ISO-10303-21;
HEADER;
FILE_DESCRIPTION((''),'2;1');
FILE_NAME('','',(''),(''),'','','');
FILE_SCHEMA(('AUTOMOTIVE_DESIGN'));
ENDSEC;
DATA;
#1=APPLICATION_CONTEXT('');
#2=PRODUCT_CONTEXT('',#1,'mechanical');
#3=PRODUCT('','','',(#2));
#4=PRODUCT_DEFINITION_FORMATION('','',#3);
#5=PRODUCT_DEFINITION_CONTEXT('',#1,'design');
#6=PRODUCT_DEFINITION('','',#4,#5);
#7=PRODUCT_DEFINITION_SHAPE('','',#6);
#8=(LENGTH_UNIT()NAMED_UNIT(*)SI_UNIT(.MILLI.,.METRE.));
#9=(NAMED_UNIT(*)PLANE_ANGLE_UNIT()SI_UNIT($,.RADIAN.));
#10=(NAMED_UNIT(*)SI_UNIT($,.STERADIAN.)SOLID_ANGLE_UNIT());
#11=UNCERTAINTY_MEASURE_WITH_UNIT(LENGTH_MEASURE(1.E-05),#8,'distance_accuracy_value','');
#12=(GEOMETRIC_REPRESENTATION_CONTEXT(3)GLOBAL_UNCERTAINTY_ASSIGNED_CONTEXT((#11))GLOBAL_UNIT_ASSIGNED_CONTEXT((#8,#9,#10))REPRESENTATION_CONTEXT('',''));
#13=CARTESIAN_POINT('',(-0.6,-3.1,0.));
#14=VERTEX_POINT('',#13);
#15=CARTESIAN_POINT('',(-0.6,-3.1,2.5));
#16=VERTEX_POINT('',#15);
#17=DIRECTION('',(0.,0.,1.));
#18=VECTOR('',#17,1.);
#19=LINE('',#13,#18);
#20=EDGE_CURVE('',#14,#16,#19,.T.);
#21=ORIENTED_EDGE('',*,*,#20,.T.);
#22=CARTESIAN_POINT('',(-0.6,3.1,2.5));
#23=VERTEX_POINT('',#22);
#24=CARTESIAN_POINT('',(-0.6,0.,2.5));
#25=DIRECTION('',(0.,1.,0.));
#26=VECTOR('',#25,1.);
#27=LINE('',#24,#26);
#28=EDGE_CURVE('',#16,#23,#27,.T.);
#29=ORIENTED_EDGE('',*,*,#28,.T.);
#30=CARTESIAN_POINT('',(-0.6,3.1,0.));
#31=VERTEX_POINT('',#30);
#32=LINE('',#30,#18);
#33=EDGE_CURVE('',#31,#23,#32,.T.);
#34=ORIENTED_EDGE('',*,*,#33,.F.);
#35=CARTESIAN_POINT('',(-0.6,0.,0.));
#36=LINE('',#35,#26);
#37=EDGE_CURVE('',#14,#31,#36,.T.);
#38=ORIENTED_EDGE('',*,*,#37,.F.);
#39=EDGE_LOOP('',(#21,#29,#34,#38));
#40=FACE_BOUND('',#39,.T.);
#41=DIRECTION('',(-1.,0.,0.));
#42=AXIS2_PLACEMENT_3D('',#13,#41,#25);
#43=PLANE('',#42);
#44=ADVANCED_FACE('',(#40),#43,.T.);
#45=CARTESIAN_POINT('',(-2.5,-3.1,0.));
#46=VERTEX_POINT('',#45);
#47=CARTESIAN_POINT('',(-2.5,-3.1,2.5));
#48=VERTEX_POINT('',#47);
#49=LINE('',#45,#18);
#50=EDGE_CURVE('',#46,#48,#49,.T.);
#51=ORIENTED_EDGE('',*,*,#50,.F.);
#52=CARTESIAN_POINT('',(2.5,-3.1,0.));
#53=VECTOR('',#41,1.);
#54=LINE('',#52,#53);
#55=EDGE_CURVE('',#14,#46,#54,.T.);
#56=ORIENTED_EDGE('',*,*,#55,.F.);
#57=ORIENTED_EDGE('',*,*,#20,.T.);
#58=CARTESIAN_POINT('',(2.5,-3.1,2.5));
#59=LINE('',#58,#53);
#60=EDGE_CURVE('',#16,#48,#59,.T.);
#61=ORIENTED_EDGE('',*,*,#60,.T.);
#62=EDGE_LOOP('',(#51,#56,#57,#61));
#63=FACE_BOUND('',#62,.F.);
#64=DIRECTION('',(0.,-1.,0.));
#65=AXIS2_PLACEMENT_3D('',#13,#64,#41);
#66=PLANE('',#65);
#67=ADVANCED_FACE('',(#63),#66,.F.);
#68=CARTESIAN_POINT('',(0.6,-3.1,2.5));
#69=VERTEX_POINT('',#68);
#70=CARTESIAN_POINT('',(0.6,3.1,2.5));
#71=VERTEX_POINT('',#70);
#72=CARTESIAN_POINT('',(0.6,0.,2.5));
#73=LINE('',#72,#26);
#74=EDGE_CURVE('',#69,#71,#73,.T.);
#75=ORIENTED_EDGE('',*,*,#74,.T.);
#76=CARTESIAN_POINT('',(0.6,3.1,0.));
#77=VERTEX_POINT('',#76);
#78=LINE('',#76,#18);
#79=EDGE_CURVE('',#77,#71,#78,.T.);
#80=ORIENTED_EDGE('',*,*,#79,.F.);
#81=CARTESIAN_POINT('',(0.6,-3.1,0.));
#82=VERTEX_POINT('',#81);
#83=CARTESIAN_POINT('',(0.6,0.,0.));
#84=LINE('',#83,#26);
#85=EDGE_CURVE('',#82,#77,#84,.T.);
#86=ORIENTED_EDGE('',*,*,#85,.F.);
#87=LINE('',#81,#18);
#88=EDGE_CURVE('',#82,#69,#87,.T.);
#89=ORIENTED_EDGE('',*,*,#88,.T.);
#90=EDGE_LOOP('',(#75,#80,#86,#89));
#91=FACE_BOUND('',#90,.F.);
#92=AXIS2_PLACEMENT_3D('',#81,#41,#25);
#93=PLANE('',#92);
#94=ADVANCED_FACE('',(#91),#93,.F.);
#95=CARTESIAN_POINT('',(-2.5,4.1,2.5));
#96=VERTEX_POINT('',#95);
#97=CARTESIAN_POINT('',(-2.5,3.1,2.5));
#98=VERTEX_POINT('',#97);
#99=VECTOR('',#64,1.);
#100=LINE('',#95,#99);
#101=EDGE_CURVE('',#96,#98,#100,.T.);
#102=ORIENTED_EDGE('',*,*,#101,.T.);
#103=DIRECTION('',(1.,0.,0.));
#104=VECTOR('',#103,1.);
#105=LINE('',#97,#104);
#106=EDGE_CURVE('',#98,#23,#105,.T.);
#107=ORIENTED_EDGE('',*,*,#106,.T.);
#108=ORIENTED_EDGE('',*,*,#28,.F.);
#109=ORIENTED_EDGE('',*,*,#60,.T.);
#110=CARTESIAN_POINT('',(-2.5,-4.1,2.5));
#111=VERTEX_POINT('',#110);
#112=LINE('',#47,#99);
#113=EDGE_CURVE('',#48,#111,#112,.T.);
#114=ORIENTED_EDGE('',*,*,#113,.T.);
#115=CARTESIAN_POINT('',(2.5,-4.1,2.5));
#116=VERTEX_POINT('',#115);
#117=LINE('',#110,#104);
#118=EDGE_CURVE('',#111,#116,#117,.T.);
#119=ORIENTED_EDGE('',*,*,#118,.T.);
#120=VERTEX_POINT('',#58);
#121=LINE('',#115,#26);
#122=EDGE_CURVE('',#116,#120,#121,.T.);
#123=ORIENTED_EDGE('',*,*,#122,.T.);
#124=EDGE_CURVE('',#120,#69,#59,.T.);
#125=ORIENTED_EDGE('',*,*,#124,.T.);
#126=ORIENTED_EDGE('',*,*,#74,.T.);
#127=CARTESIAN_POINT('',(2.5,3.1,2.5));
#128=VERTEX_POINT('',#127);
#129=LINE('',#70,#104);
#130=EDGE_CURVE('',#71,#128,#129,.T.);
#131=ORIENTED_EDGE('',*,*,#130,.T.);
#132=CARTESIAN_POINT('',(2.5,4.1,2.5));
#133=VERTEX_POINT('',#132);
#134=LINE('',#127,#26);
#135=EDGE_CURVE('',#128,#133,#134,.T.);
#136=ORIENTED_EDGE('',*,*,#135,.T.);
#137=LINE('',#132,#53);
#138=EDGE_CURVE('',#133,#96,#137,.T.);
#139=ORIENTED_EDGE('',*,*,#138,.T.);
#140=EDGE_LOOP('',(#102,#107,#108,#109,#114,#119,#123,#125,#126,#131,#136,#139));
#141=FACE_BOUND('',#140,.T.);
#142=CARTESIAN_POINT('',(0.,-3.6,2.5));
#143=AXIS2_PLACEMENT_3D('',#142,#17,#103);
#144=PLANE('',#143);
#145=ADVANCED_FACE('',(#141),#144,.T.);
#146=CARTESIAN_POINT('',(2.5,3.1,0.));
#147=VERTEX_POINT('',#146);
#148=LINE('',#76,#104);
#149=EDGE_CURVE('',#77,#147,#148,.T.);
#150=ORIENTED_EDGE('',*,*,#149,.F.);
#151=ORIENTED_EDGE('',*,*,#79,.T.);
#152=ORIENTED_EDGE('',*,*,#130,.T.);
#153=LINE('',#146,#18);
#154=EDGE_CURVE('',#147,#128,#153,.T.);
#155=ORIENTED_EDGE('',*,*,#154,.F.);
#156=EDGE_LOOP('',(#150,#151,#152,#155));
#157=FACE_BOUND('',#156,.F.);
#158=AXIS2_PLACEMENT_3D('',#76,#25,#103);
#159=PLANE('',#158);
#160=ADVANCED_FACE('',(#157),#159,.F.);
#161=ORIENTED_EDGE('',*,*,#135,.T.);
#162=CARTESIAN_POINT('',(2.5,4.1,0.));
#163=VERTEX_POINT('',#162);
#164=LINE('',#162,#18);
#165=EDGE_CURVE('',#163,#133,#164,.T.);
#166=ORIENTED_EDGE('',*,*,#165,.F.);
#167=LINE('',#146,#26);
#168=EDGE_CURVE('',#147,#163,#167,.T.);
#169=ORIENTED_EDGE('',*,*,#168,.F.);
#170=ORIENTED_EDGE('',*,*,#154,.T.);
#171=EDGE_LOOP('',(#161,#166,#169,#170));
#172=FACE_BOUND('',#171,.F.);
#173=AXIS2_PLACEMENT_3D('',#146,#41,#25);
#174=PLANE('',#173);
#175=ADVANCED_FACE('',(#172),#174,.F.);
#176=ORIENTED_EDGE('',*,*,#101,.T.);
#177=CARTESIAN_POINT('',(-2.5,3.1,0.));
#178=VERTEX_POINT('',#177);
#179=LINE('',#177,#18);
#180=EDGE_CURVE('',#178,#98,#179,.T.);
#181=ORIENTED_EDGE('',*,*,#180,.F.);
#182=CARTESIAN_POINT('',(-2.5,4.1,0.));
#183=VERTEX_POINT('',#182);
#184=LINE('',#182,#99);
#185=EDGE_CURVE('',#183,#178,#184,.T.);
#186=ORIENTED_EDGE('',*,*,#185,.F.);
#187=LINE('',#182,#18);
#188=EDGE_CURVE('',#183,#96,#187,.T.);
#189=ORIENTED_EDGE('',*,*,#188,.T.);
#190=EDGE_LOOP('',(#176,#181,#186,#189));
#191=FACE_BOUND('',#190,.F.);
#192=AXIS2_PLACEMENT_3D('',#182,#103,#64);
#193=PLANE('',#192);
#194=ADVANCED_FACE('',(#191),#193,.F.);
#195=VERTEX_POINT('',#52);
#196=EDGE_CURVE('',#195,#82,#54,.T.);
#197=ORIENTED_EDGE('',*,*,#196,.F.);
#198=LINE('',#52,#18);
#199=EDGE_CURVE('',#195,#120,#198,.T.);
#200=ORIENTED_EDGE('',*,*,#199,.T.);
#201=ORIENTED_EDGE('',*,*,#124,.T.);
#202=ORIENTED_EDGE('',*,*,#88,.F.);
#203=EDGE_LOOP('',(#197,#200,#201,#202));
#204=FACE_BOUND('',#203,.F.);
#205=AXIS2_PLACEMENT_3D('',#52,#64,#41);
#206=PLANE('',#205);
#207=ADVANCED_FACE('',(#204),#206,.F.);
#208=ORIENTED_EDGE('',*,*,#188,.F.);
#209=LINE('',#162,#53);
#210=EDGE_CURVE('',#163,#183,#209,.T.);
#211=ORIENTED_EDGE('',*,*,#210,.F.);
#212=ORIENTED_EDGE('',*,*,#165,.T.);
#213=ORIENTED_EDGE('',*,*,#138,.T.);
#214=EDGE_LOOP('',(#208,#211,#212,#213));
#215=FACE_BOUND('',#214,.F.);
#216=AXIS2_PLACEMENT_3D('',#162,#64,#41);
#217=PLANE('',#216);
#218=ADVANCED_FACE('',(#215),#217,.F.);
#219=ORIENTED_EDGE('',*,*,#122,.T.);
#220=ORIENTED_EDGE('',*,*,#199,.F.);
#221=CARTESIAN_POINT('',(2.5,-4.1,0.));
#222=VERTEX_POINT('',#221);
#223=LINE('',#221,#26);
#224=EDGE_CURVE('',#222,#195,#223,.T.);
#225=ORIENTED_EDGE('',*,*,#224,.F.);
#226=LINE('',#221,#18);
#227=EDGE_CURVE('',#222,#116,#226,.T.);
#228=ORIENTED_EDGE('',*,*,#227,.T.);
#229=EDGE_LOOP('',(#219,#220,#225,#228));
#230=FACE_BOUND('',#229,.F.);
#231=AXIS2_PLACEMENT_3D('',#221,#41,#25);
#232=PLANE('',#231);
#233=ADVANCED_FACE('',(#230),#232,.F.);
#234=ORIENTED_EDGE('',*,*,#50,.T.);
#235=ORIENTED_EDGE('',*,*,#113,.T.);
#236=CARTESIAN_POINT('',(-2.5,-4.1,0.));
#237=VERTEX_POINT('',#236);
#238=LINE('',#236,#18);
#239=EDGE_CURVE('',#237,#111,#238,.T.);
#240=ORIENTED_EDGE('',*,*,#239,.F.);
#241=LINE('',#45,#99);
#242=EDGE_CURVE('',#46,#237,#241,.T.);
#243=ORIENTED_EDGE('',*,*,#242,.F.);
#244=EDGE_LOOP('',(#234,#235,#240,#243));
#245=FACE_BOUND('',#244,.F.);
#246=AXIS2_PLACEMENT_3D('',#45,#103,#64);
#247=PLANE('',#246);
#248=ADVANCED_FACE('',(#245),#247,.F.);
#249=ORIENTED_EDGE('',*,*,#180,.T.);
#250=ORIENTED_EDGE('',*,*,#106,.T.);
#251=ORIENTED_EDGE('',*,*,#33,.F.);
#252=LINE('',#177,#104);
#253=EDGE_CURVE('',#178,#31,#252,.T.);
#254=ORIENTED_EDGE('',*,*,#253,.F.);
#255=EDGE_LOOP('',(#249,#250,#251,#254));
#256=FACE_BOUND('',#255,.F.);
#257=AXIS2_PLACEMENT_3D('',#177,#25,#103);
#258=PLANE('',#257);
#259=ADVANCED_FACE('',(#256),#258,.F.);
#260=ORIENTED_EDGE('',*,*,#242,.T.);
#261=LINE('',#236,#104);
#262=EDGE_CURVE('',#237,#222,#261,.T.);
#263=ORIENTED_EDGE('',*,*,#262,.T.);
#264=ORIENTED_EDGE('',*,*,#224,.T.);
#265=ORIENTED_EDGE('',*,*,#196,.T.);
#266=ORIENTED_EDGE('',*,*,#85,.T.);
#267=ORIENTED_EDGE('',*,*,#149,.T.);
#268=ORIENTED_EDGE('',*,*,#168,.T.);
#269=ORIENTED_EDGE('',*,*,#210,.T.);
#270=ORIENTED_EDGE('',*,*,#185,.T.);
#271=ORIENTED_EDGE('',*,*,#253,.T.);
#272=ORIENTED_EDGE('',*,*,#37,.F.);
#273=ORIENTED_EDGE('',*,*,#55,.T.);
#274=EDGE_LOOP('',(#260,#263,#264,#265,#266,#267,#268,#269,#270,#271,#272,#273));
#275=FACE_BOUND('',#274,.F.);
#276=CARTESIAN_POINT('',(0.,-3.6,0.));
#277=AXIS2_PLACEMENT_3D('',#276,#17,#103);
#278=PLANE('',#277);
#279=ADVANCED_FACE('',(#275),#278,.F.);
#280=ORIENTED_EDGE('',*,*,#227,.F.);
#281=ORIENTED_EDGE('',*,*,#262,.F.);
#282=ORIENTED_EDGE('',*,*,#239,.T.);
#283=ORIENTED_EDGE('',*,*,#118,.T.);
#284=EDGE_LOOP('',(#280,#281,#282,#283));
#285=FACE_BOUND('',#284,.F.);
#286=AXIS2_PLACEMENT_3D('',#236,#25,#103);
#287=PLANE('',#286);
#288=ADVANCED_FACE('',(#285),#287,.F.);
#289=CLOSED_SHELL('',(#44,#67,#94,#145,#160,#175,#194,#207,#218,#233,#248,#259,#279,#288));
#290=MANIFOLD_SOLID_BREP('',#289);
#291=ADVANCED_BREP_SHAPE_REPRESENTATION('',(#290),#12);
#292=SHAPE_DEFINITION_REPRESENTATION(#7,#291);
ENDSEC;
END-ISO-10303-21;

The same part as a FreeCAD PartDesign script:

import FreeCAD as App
import Part
import Sketcher
from FreeCAD import Vector


def add_polygon(sketch, points):
    """Adds a closed chain of lines whose ends are joined by coincident constraints."""
    first, n = sketch.GeometryCount, len(points)
    for a, b in zip(points, points[1:] + points[:1]):
        sketch.addGeometry(Part.LineSegment(App.Vector(*a, 0), App.Vector(*b, 0)), False)
    for i in range(n):
        sketch.addConstraint(Sketcher.Constraint("Coincident", first + i, 2, first + (i + 1) % n, 1))

doc = App.newDocument("Part")
body = doc.addObject("PartDesign::Body", "Body")

# Sketch on XY plane
sketch1 = body.newObject("Sketcher::SketchObject", "Sketch")
sketch1.AttachmentSupport = (doc.getObject("XY_Plane"), [""])
sketch1.MapMode = "FlatFace"
add_polygon(sketch1, [(2.5, -3.1), (0.6, -3.1), (0.6, 3.1), (2.5, 3.1), (2.5, 4.1), (-2.5, 4.1), (-2.5, 3.1), (-0.6, 3.1), (-0.6, -3.1), (-2.5, -3.1), (-2.5, -4.1), (2.5, -4.1)])  # lines 0-11
sketch1.addConstraint(Sketcher.Constraint("Horizontal", 0))
sketch1.addConstraint(Sketcher.Constraint("Vertical", 1))
sketch1.addConstraint(Sketcher.Constraint("Horizontal", 2))
sketch1.addConstraint(Sketcher.Constraint("Vertical", 3))
sketch1.addConstraint(Sketcher.Constraint("Horizontal", 4))
sketch1.addConstraint(Sketcher.Constraint("Vertical", 5))
sketch1.addConstraint(Sketcher.Constraint("Horizontal", 6))
sketch1.addConstraint(Sketcher.Constraint("Vertical", 7))
sketch1.addConstraint(Sketcher.Constraint("Horizontal", 8))
sketch1.addConstraint(Sketcher.Constraint("Vertical", 9))
sketch1.addConstraint(Sketcher.Constraint("Horizontal", 10))
sketch1.addConstraint(Sketcher.Constraint("Vertical", 11))
sketch1.addConstraint(Sketcher.Constraint("Symmetric", 0, 2, 6, 2, -1, 1))
sketch1.addConstraint(Sketcher.Constraint("Symmetric", 2, 2, 8, 2, -1, 1))
sketch1.addConstraint(Sketcher.Constraint("Symmetric", 4, 2, 10, 2, -1, 1))
sketch1.addConstraint(Sketcher.Constraint("Symmetric", 2, 2, 5, 2, -2))
sketch1.addConstraint(Sketcher.Constraint("DistanceX", 4, 2, 4, 1, 5.0))
sketch1.addConstraint(Sketcher.Constraint("DistanceY", 3, 1, 3, 2, 1.0))
sketch1.addConstraint(Sketcher.Constraint("DistanceX", 0, 2, 0, 1, 1.9))
sketch1.addConstraint(Sketcher.Constraint("DistanceY", 1, 1, 1, 2, 6.2))
pad1 = body.newObject("PartDesign::Pad", "Pad")
pad1.Profile = sketch1
pad1.Length = 2.5

doc.recompute()
